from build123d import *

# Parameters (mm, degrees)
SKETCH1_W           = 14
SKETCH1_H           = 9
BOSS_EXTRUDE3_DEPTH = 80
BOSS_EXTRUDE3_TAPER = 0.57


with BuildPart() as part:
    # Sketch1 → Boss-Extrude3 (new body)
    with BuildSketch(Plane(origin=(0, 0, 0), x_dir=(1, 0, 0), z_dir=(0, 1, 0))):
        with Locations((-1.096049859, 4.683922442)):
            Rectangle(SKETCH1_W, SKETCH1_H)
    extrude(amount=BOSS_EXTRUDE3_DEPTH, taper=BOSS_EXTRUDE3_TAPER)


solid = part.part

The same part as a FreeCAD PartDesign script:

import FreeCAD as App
import Part
import Sketcher
from FreeCAD import Vector

doc = App.newDocument("Part")
body = doc.addObject("PartDesign::Body", "Body")

sketch1 = doc.addObject("Sketcher::SketchObject", "Sketch")
body.addObject(sketch1)
sketch1.AttachmentSupport = (doc.XZ_Plane, [""])
sketch1.MapMode = "FlatFace"
sketch1.addGeometry([
    Part.LineSegment(Vector(-8, -9, 0), Vector(-8, 0, 0)),
    Part.LineSegment(Vector(-8, 0, 0), Vector(6, 0, 0)),
    Part.LineSegment(Vector(6, 0, 0), Vector(6, -9, 0)),
    Part.LineSegment(Vector(6, -9, 0), Vector(-8, -9, 0)),
], False)
sketch1.addConstraint([
    Sketcher.Constraint("Coincident", 0, 2, 1, 1),
    Sketcher.Constraint("Coincident", 1, 2, 2, 1),
    Sketcher.Constraint("Coincident", 2, 2, 3, 1),
    Sketcher.Constraint("Coincident", 3, 2, 0, 1),
    Sketcher.Constraint("Vertical", 0),
    Sketcher.Constraint("Horizontal", 1),
    Sketcher.Constraint("Vertical", 2),
    Sketcher.Constraint("Horizontal", 3),
    Sketcher.Constraint("DistanceX", 1, 1, 1, 2, 14.0),
    Sketcher.Constraint("DistanceY", 0, 1, 0, 2, 9.0),
    Sketcher.Constraint("DistanceX", 0, 2, -1, 1, 8.09605),
    Sketcher.Constraint("DistanceY", 0, 2, -1, 1, 0.183922),
])
pad1 = doc.addObject("PartDesign::Pad", "Pad")
body.addObject(pad1)
pad1.Profile = sketch1
pad1.Length = 80
pad1.Reversed = True
pad1.TaperAngle = -0.57

doc.recompute()
